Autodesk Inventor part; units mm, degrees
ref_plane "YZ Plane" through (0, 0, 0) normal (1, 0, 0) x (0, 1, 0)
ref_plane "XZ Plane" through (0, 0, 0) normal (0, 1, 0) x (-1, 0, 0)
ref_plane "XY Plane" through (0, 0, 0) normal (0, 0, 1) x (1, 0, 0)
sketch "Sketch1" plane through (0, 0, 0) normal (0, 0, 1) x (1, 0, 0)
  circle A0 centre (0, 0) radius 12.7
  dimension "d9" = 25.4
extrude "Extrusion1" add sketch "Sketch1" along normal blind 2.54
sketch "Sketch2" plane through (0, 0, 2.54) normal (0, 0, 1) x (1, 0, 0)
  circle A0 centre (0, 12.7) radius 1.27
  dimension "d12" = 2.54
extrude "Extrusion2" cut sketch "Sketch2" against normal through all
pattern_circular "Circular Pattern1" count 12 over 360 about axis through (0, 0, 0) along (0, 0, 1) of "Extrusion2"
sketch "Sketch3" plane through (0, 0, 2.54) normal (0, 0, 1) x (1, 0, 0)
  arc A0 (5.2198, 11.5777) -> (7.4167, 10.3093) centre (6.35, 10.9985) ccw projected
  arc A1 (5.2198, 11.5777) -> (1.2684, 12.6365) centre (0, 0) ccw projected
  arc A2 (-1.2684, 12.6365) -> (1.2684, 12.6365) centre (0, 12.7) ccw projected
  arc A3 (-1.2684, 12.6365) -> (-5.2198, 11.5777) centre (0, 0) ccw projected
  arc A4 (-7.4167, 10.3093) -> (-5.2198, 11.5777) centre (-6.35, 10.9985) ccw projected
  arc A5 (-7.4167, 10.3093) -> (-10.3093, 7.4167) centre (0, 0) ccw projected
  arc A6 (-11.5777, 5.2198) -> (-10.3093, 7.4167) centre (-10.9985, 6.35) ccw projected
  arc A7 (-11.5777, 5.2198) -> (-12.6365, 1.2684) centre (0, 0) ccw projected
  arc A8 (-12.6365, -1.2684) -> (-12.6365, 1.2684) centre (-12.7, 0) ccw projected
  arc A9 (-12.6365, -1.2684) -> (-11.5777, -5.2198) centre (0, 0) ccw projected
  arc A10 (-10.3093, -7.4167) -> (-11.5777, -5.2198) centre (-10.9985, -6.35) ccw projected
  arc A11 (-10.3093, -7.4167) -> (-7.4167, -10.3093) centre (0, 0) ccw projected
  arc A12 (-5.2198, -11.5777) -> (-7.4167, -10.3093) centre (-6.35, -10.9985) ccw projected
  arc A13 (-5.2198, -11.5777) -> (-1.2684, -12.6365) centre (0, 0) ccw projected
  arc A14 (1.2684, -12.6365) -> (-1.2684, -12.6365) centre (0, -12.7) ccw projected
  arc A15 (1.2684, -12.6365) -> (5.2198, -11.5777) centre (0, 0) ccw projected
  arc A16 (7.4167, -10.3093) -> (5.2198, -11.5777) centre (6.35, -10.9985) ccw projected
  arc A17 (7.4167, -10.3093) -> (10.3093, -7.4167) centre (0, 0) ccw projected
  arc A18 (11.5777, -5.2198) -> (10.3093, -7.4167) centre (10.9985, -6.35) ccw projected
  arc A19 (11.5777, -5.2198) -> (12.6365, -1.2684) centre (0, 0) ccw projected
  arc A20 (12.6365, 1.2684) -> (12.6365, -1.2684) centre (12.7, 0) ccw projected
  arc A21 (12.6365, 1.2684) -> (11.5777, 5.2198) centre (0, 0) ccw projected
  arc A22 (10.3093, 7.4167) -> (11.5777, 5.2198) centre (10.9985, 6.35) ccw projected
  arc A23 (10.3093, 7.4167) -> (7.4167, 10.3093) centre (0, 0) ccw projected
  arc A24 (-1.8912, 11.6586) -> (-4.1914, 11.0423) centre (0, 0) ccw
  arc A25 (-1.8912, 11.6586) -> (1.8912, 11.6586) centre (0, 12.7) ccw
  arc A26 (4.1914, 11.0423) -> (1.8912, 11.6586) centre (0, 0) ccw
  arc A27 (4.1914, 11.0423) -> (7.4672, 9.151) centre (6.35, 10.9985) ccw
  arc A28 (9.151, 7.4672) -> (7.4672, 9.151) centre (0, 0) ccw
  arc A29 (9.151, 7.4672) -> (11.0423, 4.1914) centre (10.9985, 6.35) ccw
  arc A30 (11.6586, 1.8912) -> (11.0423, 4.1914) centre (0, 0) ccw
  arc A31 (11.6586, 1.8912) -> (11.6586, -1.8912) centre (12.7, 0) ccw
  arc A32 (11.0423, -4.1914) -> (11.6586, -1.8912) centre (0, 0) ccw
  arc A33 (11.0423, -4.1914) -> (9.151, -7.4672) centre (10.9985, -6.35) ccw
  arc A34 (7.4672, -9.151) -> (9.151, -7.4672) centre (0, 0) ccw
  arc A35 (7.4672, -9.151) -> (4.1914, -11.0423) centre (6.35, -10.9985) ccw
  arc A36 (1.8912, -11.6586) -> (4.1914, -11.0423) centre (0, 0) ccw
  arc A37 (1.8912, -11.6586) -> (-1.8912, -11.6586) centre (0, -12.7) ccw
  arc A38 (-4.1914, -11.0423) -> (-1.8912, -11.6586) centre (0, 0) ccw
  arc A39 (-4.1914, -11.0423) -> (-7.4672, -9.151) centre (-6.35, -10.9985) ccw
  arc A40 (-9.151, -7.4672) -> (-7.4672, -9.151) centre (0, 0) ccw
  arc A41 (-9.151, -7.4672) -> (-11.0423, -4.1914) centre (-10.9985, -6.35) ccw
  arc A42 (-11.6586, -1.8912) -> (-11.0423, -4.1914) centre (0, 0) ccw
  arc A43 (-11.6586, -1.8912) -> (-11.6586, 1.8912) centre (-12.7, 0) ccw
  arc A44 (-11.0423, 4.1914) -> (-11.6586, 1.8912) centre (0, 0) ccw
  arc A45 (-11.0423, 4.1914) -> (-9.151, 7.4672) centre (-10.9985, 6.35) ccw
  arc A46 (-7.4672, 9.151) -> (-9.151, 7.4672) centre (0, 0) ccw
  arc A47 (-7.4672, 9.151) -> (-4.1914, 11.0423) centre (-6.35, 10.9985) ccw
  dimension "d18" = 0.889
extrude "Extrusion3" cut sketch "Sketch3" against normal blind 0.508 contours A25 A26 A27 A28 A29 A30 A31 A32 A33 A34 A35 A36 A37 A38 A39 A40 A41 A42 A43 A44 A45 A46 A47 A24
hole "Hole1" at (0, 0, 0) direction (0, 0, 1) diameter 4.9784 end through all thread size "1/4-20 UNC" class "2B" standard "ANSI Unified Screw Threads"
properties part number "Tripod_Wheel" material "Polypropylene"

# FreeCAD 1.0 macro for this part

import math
import FreeCAD as App
import Part
import Sketcher

V = App.Vector
Q = App.Units.Quantity

doc = App.newDocument("Part")
body = doc.addObject("PartDesign::Body", "Body")

sketch1 = body.newObject("Sketcher::SketchObject", "Sketch")
sketch1.AttachmentSupport = (doc.getObject("XY_Plane"), [""])
sketch1.MapMode = "FlatFace"
sketch1.addGeometry(Part.Circle(V(0, 0, 0), V(0, 0, 1), 13), False)
sketch1.addConstraint([
    Sketcher.Constraint("Coincident", 0, 3, -1, 1),
    Sketcher.Constraint("Diameter", 0, Q("1 in")),
])
pad1 = body.newObject("PartDesign::Pad", "Pad")
pad1.Profile = sketch1
pad1.Length = Q("0.1 in")

sketch2 = body.newObject("Sketcher::SketchObject", "Sketch001")
sketch2.AttachmentSupport = (doc.getObject("XY_Plane"), [""])
sketch2.MapMode = "FlatFace"
sketch2.AttachmentOffset = App.Placement(V(0, 0, 0.1 * 25.4), App.Rotation())
sketch2.addGeometry(Part.Circle(V(0, 12.7, 0), V(0, 0, 1), 1.3), False)
sketch2.addConstraint([
    Sketcher.Constraint("PointOnObject", 0, 3, -2),
    Sketcher.Constraint("Diameter", 0, Q("0.1 in")),
    Sketcher.Constraint("DistanceY", -1, 1, 0, 3, Q("0.5 in")),
])
pocket1 = body.newObject("PartDesign::Pocket", "Pocket")
pocket1.Profile = sketch2
pocket1.Type = "ThroughAll"
doc.recompute()

polarpattern = body.newObject("PartDesign::PolarPattern", "PolarPattern")
polarpattern.Originals = [pocket1]
polarpattern.Axis = (doc.getObject("Z_Axis"), [""])
polarpattern.Angle = 360
polarpattern.Occurrences = 12
body.Tip = polarpattern

sketch3 = body.newObject("Sketcher::SketchObject", "Sketch002")
sketch3.AttachmentSupport = (doc.getObject("XY_Plane"), [""])
sketch3.MapMode = "FlatFace"
sketch3.AttachmentOffset = App.Placement(V(0, 0, 0.1 * 25.4), App.Rotation())
sketch3.addGeometry([
    Part.ArcOfCircle(Part.Circle(V(0, 12.7, 0), V(0, 0, 1), 2.15897), math.radians(-151.160372), math.radians(-28.839628)),
    Part.ArcOfCircle(Part.Circle(V(0.000551, -0.002571, 0), V(0, 0, 1), 11.81362), math.radians(99.214621), math.radians(110.783672)),
    Part.ArcOfCircle(Part.Circle(V(-6.35, 10.9985, 0), V(0, 0, 1), 2.159026), math.radians(-121.161734), math.radians(1.162425)),
    Part.ArcOfCircle(Part.Circle(V(0, 0, 0), V(0, 0, 1), 11.811007), math.radians(129.214385), math.radians(140.785615)),
    Part.ArcOfCircle(Part.Circle(V(-10.9985, 6.35, 0), V(0, 0, 1), 2.159044), math.radians(-91.162425), math.radians(31.161734)),
    Part.ArcOfCircle(Part.Circle(V(-0.002501, 0.000807, 0), V(0, 0, 1), 11.808397), math.radians(159.21376), math.radians(170.787947)),
    Part.ArcOfCircle(Part.Circle(V(-12.7, 0, 0), V(0, 0, 1), 2.15897), math.radians(-61.160372), math.radians(61.160372)),
    Part.ArcOfCircle(Part.Circle(V(0.002571, 0.000551, 0), V(0, 0, 1), 11.81362), math.radians(-170.785379), math.radians(-159.216328)),
    Part.ArcOfCircle(Part.Circle(V(-10.9985, -6.35, 0), V(0, 0, 1), 2.159026), math.radians(-31.161734), math.radians(91.162425)),
    Part.ArcOfCircle(Part.Circle(V(0, 0, 0), V(0, 0, 1), 11.811007), math.radians(-140.785615), math.radians(-129.214385)),
    Part.ArcOfCircle(Part.Circle(V(-6.35, -10.9985, 0), V(0, 0, 1), 2.159044), math.radians(-1.162425), math.radians(121.161734)),
    Part.ArcOfCircle(Part.Circle(V(-0.000807, -0.002501, 0), V(0, 0, 1), 11.808397), math.radians(-110.78624), math.radians(-99.212053)),
    Part.ArcOfCircle(Part.Circle(V(0, -12.7, 0), V(0, 0, 1), 2.15897), math.radians(28.839628), math.radians(151.160372)),
    Part.ArcOfCircle(Part.Circle(V(-0.000551, 0.002571, 0), V(0, 0, 1), 11.81362), math.radians(-80.785379), math.radians(-69.216328)),
    Part.ArcOfCircle(Part.Circle(V(6.35, -10.9985, 0), V(0, 0, 1), 2.159026), math.radians(58.838266), math.radians(181.162425)),
    Part.ArcOfCircle(Part.Circle(V(0, 0, 0), V(0, 0, 1), 11.811007), math.radians(-50.785615), math.radians(-39.214385)),
    Part.ArcOfCircle(Part.Circle(V(10.9985, -6.35, 0), V(0, 0, 1), 2.159044), math.radians(88.837575), math.radians(211.161734)),
    Part.ArcOfCircle(Part.Circle(V(0.002501, -0.000807, 0), V(0, 0, 1), 11.808397), math.radians(-20.78624), math.radians(-9.212053)),
    Part.ArcOfCircle(Part.Circle(V(12.7, 0, 0), V(0, 0, 1), 2.15897), math.radians(118.839628), math.radians(241.160372)),
    Part.ArcOfCircle(Part.Circle(V(-0.002571, -0.000551, 0), V(0, 0, 1), 11.81362), math.radians(9.214621), math.radians(20.783672)),
    Part.ArcOfCircle(Part.Circle(V(10.9985, 6.35, 0), V(0, 0, 1), 2.159026), math.radians(148.838266), math.radians(271.162425)),
    Part.ArcOfCircle(Part.Circle(V(0, 0, 0), V(0, 0, 1), 11.811007), math.radians(39.214385), math.radians(50.785615)),
    Part.ArcOfCircle(Part.Circle(V(6.35, 10.9985, 0), V(0, 0, 1), 2.159044), math.radians(178.837575), math.radians(301.161734)),
    Part.ArcOfCircle(Part.Circle(V(0.000807, 0.002501, 0), V(0, 0, 1), 11.808397), math.radians(69.21376), math.radians(80.787947)),
], False)
sketch3.addConstraint([
    Sketcher.Constraint("Coincident", 0, 1, 1, 1),
    Sketcher.Constraint("Coincident", 1, 2, 2, 2),
    Sketcher.Constraint("Coincident", 2, 1, 3, 1),
    Sketcher.Constraint("Coincident", 3, 2, 4, 2),
    Sketcher.Constraint("Coincident", 4, 1, 5, 1),
    Sketcher.Constraint("Coincident", 5, 2, 6, 2),
    Sketcher.Constraint("Coincident", 6, 1, 7, 1),
    Sketcher.Constraint("Coincident", 7, 2, 8, 2),
    Sketcher.Constraint("Coincident", 8, 1, 9, 1),
    Sketcher.Constraint("Coincident", 9, 2, 10, 2),
    Sketcher.Constraint("Coincident", 10, 1, 11, 1),
    Sketcher.Constraint("Coincident", 11, 2, 12, 2),
    Sketcher.Constraint("Coincident", 12, 1, 13, 1),
    Sketcher.Constraint("Coincident", 13, 2, 14, 2),
    Sketcher.Constraint("Coincident", 14, 1, 15, 1),
    Sketcher.Constraint("Coincident", 15, 2, 16, 2),
    Sketcher.Constraint("Coincident", 16, 1, 17, 1),
    Sketcher.Constraint("Coincident", 17, 2, 18, 2),
    Sketcher.Constraint("Coincident", 18, 1, 19, 1),
    Sketcher.Constraint("Coincident", 19, 2, 20, 2),
    Sketcher.Constraint("Coincident", 20, 1, 21, 1),
    Sketcher.Constraint("Coincident", 21, 2, 22, 2),
    Sketcher.Constraint("Coincident", 22, 1, 23, 1),
    Sketcher.Constraint("Coincident", 23, 2, 0, 2),
    Sketcher.Constraint("Coincident", 3, 3, -1, 1),
    Sketcher.Constraint("Coincident", 9, 3, -1, 1),
    Sketcher.Constraint("Coincident", 15, 3, -1, 1),
    Sketcher.Constraint("Coincident", 21, 3, -1, 1),
    Sketcher.Constraint("Equal", 0, 2),
    Sketcher.Constraint("Equal", 2, 4),
    Sketcher.Constraint("Equal", 4, 6),
    Sketcher.Constraint("Equal", 1, 7),
    Sketcher.Constraint("Equal", 6, 8),
    Sketcher.Constraint("Equal", 3, 9),
    Sketcher.Constraint("Equal", 8, 10),
    Sketcher.Constraint("Equal", 5, 11),
    Sketcher.Constraint("Equal", 10, 12),
    Sketcher.Constraint("Equal", 7, 13),
    Sketcher.Constraint("Equal", 12, 14),
    Sketcher.Constraint("Equal", 9, 15),
    Sketcher.Constraint("Equal", 14, 16),
    Sketcher.Constraint("Equal", 11, 17),
    Sketcher.Constraint("Equal", 16, 18),
    Sketcher.Constraint("Equal", 13, 19),
    Sketcher.Constraint("Equal", 18, 20),
    Sketcher.Constraint("Equal", 15, 21),
    Sketcher.Constraint("Equal", 20, 22),
    Sketcher.Constraint("Equal", 17, 23),
    Sketcher.Constraint("Symmetric", 0, 3, 12, 3, -1, 1),
    Sketcher.Constraint("Symmetric", 1, 3, 13, 3, -1, 1),
    Sketcher.Constraint("Symmetric", 2, 3, 14, 3, -1, 1),
    Sketcher.Constraint("Symmetric", 4, 3, 16, 3, -1, 1),
    Sketcher.Constraint("Symmetric", 5, 3, 17, 3, -1, 1),
    Sketcher.Constraint("Symmetric", 6, 3, 18, 3, -1, 1),
    Sketcher.Constraint("Symmetric", 7, 3, 19, 3, -1, 1),
    Sketcher.Constraint("Symmetric", 8, 3, 20, 3, -1, 1),
    Sketcher.Constraint("Symmetric", 10, 3, 22, 3, -1, 1),
    Sketcher.Constraint("Symmetric", 11, 3, 23, 3, -1, 1),
    Sketcher.Constraint("Symmetric", 5, 3, 7, 3, -2),
    Sketcher.Constraint("Symmetric", 1, 3, 11, 3, -2),
    Sketcher.Constraint("Symmetric", 10, 3, 14, 3, -2),
    Sketcher.Constraint("Symmetric", 8, 3, 16, 3, -2),
    Sketcher.Constraint("Symmetric", 11, 2, 12, 1, -2),
    Sketcher.Constraint("Symmetric", 6, 1, 17, 2, -2),
    Sketcher.Constraint("Horizontal", 10, 1, 13, 2),
    Sketcher.Constraint("Vertical", 4, 1, 7, 2),
    Sketcher.Constraint("Radius", 0, Q("0.085 in")),
    Sketcher.Constraint("Radius", 3, Q("0.465 in")),
    Sketcher.Constraint("DistanceY", -1, 1, 0, 3, Q("0.5 in")),
    Sketcher.Constraint("DistanceX", 6, 3, -1, 1, Q("0.5 in")),
    Sketcher.Constraint("Radius", 1, Q("0.4651 in")),
    Sketcher.Constraint("Radius", 5, Q("0.4649 in")),
    Sketcher.Constraint("DistanceY", 8, 3, 4, 3, Q("0.5 in")),
    Sketcher.Constraint("DistanceX", 2, 3, -1, 1, Q("0.25 in")),
    Sketcher.Constraint("DistanceY", -1, 1, 2, 3, Q("0.433 in")),
    Sketcher.Constraint("DistanceX", 4, 3, -1, 1, Q("0.433 in")),
])
pocket2 = body.newObject("PartDesign::Pocket", "Pocket001")
pocket2.Profile = sketch3
pocket2.Length = Q("0.02 in")

sketch4 = body.newObject("Sketcher::SketchObject", "Sketch003")
sketch4.AttachmentSupport = (doc.getObject("XY_Plane"), [""])
sketch4.MapMode = "FlatFace"
sketch4.addGeometry(Part.Circle(V(0, 0, 0), V(0, 0, 1), 2.5), False)
sketch4.addConstraint([
    Sketcher.Constraint("Coincident", 0, 3, -1, 1),
    Sketcher.Constraint("Diameter", 0, Q("0.196 in")),
])
doc.recompute()
hole = body.newObject("PartDesign::Hole", "Hole")
hole.Profile = sketch4
hole.ThreadType = "None"
hole.Diameter = Q("0.196 in")
hole.DepthType = "ThroughAll"
hole.Reversed = True

doc.recompute()
